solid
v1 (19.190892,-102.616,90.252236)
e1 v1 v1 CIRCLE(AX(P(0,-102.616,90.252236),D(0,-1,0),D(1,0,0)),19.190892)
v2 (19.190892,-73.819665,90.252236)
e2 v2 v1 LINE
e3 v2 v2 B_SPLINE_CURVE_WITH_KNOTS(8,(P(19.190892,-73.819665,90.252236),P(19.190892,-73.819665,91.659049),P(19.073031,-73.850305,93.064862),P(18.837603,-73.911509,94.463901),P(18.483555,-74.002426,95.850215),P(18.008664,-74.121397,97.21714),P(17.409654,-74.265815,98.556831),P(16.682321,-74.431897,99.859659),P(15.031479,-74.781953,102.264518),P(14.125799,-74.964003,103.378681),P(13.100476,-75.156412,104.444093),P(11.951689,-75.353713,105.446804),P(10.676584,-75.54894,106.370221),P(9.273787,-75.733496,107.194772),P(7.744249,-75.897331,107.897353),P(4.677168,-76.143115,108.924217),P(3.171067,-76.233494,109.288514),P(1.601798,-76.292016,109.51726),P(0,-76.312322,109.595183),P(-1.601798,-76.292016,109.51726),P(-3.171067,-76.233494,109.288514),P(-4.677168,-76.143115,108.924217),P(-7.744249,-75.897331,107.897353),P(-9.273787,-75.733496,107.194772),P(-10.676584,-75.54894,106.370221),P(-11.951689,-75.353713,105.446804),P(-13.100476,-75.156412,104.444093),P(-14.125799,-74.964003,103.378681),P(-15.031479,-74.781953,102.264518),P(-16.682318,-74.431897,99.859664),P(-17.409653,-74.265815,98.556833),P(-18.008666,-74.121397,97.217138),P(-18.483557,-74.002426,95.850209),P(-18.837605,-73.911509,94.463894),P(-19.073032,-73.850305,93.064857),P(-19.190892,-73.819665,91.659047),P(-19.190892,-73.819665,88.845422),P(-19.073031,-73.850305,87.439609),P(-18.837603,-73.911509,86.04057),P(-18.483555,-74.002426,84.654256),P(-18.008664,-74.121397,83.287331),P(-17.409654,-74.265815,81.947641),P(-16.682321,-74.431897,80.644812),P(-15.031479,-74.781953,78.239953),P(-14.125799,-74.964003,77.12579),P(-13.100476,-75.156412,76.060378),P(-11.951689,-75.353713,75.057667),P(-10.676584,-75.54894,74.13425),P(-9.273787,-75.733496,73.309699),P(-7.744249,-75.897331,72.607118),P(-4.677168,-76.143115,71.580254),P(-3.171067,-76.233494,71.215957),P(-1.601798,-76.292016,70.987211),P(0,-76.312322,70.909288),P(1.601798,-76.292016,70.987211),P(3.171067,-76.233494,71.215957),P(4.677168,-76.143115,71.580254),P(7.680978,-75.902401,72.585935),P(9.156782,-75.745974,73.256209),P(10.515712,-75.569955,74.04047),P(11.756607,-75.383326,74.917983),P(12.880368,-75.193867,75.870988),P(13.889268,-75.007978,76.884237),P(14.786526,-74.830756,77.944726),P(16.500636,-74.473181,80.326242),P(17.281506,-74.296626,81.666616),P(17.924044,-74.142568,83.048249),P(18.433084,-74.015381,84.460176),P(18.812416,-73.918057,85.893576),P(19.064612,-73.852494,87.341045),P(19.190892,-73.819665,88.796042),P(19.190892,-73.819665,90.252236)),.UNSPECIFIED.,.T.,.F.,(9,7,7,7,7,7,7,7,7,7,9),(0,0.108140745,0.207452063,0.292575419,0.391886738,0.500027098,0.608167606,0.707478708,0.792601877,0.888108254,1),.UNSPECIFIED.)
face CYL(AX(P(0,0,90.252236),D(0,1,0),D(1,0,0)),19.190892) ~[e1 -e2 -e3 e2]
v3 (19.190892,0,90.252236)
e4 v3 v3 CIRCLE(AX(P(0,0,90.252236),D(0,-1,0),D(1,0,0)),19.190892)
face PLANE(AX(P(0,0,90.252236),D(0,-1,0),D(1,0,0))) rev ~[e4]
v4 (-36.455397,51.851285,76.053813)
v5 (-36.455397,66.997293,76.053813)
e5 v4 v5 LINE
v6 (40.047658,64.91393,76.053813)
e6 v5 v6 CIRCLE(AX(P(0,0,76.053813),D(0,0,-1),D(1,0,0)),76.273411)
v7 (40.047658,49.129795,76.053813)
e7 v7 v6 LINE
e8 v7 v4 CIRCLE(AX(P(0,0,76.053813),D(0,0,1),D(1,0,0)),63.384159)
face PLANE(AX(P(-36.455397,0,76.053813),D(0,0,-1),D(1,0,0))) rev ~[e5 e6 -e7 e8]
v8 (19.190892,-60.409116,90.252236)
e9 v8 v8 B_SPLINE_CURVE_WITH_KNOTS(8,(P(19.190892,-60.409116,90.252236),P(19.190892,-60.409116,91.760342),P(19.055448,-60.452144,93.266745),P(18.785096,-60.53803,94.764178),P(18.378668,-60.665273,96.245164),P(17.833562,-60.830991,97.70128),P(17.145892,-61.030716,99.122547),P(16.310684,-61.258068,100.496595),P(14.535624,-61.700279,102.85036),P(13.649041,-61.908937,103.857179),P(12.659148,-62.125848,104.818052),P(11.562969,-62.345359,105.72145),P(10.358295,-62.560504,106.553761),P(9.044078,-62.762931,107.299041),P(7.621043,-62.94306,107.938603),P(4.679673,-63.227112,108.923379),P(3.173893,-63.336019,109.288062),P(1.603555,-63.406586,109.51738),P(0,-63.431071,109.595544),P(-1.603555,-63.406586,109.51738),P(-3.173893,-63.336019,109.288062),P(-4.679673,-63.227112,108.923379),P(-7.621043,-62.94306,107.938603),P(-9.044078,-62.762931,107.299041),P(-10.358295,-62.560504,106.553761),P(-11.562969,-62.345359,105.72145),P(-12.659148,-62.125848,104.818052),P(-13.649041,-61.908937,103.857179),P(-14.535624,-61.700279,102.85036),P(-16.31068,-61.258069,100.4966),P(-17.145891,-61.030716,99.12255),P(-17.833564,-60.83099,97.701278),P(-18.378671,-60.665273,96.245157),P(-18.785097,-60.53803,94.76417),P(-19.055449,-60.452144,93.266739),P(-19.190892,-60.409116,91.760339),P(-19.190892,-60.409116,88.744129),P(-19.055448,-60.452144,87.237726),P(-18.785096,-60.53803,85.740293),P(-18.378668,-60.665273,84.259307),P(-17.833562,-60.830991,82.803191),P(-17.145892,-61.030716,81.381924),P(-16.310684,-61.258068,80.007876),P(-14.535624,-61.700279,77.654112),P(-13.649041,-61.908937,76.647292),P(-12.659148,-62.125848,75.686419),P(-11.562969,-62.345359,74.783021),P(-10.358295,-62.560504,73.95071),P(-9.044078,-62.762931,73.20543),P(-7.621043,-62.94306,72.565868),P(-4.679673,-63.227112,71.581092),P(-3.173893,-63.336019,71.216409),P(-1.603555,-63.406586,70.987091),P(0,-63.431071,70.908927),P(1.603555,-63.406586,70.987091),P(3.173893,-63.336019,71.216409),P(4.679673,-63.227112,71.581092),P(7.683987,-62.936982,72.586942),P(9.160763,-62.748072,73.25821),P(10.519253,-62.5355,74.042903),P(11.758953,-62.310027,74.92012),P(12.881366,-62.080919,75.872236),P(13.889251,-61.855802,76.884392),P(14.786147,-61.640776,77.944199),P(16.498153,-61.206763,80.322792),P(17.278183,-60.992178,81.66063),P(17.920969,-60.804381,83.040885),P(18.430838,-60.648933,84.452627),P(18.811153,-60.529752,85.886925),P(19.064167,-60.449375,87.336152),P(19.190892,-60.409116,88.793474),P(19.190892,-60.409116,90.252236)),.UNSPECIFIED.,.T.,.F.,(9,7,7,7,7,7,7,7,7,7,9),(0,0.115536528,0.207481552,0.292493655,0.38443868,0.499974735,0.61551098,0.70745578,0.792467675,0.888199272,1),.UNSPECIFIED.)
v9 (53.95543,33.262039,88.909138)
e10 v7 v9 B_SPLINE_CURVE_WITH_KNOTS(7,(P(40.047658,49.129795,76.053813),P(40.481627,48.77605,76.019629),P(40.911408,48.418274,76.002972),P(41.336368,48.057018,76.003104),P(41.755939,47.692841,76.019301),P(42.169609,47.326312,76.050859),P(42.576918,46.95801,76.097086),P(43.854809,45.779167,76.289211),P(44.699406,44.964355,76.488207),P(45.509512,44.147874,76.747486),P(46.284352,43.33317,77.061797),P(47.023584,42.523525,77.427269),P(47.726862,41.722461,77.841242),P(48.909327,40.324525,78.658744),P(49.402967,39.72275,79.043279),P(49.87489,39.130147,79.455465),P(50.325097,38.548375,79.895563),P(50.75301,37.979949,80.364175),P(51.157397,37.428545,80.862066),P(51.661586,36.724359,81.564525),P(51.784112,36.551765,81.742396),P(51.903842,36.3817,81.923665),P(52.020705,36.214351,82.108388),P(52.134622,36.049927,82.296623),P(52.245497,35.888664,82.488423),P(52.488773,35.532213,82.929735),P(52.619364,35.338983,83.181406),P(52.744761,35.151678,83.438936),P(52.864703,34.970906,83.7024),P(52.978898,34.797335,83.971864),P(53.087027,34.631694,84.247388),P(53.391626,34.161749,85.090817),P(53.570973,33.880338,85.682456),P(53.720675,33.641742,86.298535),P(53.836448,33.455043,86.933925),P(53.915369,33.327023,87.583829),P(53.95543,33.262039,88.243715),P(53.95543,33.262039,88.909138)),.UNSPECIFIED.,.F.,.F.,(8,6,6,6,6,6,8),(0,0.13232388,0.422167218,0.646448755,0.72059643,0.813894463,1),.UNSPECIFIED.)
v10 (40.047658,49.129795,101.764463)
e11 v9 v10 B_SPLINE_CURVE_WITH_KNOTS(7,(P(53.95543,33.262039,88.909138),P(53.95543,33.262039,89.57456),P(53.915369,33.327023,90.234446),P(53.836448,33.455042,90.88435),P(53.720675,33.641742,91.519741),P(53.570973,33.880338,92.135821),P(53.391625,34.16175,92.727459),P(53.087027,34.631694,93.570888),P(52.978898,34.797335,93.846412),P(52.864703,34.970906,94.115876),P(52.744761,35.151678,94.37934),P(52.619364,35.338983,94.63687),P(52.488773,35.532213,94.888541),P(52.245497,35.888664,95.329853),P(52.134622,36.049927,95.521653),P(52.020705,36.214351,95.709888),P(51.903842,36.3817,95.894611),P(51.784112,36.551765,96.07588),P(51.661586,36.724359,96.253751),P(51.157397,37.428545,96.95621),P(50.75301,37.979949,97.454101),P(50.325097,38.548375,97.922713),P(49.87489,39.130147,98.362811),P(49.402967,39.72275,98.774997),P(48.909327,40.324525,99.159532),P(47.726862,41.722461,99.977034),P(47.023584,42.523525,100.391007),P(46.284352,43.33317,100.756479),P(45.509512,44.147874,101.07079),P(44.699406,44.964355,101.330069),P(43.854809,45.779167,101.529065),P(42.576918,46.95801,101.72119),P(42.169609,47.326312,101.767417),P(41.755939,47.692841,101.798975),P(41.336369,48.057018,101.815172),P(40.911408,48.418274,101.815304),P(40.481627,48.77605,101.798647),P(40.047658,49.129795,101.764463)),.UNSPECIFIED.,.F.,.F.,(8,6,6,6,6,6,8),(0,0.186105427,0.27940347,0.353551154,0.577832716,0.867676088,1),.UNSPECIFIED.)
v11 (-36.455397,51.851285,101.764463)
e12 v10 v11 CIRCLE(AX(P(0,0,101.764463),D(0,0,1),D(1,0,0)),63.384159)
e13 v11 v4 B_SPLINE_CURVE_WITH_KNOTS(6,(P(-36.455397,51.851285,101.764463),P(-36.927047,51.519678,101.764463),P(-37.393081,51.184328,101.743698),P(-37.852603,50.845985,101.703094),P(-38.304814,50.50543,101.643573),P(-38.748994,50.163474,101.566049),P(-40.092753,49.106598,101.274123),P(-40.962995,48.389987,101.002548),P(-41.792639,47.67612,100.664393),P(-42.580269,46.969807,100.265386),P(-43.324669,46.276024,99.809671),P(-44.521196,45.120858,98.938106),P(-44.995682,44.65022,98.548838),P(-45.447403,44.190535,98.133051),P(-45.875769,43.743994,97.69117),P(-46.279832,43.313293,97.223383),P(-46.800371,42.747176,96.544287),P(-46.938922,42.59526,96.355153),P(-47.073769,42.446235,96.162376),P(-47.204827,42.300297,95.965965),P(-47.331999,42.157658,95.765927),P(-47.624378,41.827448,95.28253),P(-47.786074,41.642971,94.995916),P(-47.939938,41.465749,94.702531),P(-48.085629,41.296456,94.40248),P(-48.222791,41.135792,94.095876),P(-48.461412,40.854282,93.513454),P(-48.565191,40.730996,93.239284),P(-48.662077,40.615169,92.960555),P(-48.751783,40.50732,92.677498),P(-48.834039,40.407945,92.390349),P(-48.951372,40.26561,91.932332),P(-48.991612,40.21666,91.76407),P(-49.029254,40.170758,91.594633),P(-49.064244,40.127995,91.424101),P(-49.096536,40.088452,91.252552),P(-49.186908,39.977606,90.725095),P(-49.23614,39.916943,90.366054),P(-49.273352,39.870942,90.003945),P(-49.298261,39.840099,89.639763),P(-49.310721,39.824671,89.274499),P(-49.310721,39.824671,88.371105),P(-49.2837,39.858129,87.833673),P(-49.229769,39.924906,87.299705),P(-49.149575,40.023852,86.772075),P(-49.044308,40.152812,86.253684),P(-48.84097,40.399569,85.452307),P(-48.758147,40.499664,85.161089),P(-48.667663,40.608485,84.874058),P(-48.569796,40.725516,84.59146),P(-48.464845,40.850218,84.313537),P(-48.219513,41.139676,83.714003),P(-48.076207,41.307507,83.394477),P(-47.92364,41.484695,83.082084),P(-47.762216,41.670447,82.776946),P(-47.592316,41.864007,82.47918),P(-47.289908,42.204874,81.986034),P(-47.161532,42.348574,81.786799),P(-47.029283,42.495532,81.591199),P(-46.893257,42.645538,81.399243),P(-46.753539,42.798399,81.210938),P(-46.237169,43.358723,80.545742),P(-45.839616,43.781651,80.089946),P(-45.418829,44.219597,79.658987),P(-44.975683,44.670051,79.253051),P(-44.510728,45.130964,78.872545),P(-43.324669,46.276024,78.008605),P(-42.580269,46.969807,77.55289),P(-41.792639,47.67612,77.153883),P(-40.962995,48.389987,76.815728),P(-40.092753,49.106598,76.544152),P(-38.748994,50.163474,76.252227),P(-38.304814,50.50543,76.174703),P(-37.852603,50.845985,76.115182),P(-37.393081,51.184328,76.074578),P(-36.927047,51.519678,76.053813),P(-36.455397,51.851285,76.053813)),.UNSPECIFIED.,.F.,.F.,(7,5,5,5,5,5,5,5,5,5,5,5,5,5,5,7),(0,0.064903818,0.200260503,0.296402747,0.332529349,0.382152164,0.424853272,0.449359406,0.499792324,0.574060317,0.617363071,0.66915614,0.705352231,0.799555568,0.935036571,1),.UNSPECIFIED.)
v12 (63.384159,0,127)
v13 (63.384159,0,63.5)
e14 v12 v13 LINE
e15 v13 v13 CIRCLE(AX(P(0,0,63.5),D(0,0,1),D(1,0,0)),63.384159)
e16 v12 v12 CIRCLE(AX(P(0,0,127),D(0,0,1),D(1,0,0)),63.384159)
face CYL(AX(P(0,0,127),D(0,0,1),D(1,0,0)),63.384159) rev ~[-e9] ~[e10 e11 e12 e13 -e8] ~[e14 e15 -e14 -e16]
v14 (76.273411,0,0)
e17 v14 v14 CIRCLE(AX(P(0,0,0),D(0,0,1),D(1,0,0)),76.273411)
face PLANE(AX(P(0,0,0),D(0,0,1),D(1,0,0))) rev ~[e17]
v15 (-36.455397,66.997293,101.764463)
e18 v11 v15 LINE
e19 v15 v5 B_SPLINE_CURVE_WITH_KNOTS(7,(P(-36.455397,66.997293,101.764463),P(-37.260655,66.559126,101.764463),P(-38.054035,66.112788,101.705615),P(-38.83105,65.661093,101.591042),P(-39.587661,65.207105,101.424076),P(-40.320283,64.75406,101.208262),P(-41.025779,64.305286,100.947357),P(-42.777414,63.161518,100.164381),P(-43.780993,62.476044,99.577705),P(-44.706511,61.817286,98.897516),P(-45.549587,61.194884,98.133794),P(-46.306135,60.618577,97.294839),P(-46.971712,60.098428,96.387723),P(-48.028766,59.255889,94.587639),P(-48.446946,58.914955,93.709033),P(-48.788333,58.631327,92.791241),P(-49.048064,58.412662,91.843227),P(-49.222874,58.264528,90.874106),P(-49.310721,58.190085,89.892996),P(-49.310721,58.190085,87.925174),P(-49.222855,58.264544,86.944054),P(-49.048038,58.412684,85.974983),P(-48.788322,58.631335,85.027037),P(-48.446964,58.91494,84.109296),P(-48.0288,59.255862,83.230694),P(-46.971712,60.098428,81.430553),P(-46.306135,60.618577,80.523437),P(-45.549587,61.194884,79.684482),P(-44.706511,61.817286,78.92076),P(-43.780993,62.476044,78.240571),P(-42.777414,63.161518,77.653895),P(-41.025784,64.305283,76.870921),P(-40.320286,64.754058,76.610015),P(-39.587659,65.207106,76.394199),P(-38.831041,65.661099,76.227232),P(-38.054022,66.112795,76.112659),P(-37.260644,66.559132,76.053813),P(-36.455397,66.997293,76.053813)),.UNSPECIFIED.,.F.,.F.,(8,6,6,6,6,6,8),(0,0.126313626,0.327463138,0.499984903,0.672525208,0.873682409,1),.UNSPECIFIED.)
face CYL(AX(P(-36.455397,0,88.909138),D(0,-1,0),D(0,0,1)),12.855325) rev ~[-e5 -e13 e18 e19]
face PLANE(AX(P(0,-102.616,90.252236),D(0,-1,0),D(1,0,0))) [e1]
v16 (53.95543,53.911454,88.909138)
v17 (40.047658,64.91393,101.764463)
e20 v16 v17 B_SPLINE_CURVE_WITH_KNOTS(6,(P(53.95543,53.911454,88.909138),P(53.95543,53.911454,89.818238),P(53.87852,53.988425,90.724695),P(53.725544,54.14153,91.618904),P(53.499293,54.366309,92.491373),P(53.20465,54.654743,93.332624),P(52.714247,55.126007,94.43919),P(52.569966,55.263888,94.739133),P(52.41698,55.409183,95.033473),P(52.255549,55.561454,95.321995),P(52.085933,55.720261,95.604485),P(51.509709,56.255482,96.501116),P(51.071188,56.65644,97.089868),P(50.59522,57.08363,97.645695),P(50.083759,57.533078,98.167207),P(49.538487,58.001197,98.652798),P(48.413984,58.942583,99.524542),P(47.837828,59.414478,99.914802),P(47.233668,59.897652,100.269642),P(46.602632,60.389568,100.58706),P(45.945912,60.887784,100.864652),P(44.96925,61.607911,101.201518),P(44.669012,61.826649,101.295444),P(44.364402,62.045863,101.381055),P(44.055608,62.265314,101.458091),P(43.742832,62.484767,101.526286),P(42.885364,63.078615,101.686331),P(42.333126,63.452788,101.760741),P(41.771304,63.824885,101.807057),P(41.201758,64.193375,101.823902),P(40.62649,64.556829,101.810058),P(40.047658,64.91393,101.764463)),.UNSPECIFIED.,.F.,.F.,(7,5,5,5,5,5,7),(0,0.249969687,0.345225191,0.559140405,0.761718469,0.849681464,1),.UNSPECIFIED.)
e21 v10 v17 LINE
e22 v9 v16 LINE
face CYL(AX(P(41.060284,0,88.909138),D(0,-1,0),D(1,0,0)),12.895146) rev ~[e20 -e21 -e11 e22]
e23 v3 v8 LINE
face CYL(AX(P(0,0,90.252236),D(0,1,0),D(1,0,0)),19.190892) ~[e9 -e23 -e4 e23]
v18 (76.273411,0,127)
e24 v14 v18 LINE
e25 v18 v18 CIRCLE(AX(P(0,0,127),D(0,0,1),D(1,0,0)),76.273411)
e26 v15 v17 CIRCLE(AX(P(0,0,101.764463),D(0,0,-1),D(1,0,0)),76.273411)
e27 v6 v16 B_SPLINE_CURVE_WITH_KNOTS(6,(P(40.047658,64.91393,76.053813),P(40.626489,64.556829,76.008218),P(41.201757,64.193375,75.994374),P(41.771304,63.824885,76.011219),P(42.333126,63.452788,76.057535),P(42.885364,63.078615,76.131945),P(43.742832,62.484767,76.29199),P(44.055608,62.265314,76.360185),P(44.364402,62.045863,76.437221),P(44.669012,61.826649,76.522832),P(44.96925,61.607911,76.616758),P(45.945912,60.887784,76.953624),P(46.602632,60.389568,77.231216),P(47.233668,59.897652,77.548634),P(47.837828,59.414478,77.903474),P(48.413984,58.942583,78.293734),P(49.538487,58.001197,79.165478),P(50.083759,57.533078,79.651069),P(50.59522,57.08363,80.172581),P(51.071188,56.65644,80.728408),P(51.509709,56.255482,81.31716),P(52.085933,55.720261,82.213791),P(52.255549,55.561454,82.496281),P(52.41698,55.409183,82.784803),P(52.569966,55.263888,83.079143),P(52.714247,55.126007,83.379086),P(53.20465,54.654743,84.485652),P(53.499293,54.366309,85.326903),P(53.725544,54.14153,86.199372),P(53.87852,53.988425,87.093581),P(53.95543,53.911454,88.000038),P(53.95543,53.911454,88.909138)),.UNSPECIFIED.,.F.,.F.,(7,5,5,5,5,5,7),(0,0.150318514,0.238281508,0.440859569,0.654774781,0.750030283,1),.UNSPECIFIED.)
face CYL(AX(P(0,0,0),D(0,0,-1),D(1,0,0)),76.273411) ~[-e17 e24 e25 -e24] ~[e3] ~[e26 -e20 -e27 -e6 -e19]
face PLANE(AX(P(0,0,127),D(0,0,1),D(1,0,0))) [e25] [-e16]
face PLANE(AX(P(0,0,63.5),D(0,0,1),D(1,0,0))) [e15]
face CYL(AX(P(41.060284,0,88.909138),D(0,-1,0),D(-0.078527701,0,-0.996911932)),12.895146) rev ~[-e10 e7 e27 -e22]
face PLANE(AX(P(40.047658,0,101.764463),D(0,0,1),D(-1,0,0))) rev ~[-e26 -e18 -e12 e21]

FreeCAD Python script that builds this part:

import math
import FreeCAD as App
import Part
import Sketcher
Q = App.Units.Quantity

doc = App.newDocument("Part")
body = doc.addObject("PartDesign::Body", "Body")

sketch1 = body.newObject("Sketcher::SketchObject", "Sketch")
sketch1.AttachmentSupport = (doc.getObject("XY_Plane"), [""])
sketch1.MapMode = "FlatFace"
sketch1.addGeometry(Part.Circle(App.Vector(0, 0, 0), App.Vector(0, 0, 1), 76), False)
sketch1.addConstraint([
    Sketcher.Constraint("Coincident", 0, 3, -1, 1),
    Sketcher.Constraint("Diameter", 0, 152.546822),
])
pad1 = body.newObject("PartDesign::Pad", "Pad")
pad1.Profile = sketch1
pad1.Length = Q("5 in")

sketch2 = body.newObject("Sketcher::SketchObject", "Sketch001")
sketch2.AttachmentSupport = (doc.getObject("XY_Plane"), [""])
sketch2.MapMode = "FlatFace"
sketch2.AttachmentOffset = App.Placement(App.Vector(0, 0, 5 * 25.4), App.Rotation())
sketch2.addGeometry(Part.Circle(App.Vector(0, 0, 0), App.Vector(0, 0, 1), 63), False)
sketch2.addConstraint([
    Sketcher.Constraint("Coincident", 0, 3, -1, 1),
    Sketcher.Constraint("Diameter", 0, 126.768319),
])
pocket1 = body.newObject("PartDesign::Pocket", "Pocket")
pocket1.Profile = sketch2
pocket1.Length = Q("2.5 in")

sketch3 = body.newObject("Sketcher::SketchObject", "Sketch002")
sketch3.AttachmentSupport = (doc.getObject("XZ_Plane"), [""])
sketch3.MapMode = "FlatFace"
sketch3.addGeometry([
    Part.LineSegment(App.Vector(-36, 76, 0), App.Vector(40, 76, 0)),
    Part.ArcOfCircle(Part.Circle(App.Vector(41, 89, 0), App.Vector(0, 0, 1), 13), math.radians(-95), math.radians(0)),
    Part.ArcOfCircle(Part.Circle(App.Vector(41, 89, 0), App.Vector(0, 0, 1), 13), math.radians(0), math.radians(95)),
    Part.LineSegment(App.Vector(40, 102, 0), App.Vector(-36, 102, 0)),
    Part.ArcOfCircle(Part.Circle(App.Vector(-36, 89, 0), App.Vector(0, 0, 1), 13), math.radians(90), math.radians(270)),
], False)
sketch3.addConstraint([
    Sketcher.Constraint("Coincident", 0, 2, 1, 1),
    Sketcher.Constraint("Tangent", 1, 2, 2, 1),
    Sketcher.Constraint("Coincident", 2, 2, 3, 1),
    Sketcher.Constraint("Tangent", 3, 2, 4, 1),
    Sketcher.Constraint("Tangent", 4, 2, 0, 1),
    Sketcher.Constraint("Horizontal", 0),
    Sketcher.Constraint("Horizontal", 3),
    Sketcher.Constraint("Equal", 1, 2),
    Sketcher.Constraint("Horizontal", 2, 3, 4, 3),
    Sketcher.Constraint("Horizontal", 4, 3, 1, 2),
    Sketcher.Constraint("Radius", 1, 12.895146),
    Sketcher.Constraint("Radius", 4, 12.855325),
    Sketcher.Constraint("DistanceX", 0, 1, 0, 2, 76.503054),
    Sketcher.Constraint("DistanceX", -1, 1, 1, 2, 53.95543),
    Sketcher.Constraint("DistanceY", -1, 1, 1, 3, 88.909138),
])
pocket2 = body.newObject("PartDesign::Pocket", "Pocket001")
pocket2.Profile = sketch3
pocket2.Length = Q("5 in")

sketch4 = body.newObject("Sketcher::SketchObject", "Sketch003")
sketch4.AttachmentSupport = (doc.getObject("XZ_Plane"), [""])
sketch4.MapMode = "FlatFace"
sketch4.addGeometry(Part.Circle(App.Vector(0, 90, 0), App.Vector(0, 0, 1), 19), False)
sketch4.addConstraint([
    Sketcher.Constraint("PointOnObject", 0, 3, -2),
    Sketcher.Constraint("Diameter", 0, 38.381785),
    Sketcher.Constraint("DistanceY", -1, 1, 0, 3, 90.252236),
])
pad2 = body.newObject("PartDesign::Pad", "Pad001")
pad2.Profile = sketch4
pad2.Length = Q("4.04 in")

doc.recompute()
